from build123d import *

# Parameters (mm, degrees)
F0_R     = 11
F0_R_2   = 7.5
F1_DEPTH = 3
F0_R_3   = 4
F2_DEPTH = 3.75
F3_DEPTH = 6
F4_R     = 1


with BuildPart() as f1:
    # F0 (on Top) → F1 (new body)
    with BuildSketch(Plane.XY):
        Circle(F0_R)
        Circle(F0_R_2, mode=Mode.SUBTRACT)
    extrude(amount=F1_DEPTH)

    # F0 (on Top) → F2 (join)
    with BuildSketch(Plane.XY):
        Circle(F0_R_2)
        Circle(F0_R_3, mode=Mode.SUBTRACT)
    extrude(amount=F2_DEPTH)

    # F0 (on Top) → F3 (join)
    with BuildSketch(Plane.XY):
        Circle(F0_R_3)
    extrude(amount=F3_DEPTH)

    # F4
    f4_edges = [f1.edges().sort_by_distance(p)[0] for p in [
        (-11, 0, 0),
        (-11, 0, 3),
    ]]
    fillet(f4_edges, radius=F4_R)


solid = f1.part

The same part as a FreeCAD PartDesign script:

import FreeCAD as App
import Part
import Sketcher


def edges_at(feature, points):
    """Names of the edges that pass closest to the given points."""
    edges = feature.Shape.Edges
    near = lambda p: min(range(len(edges)), key=lambda i: edges[i].distToShape(Part.Vertex(*p))[0])
    return sorted({f"Edge{near(p) + 1}" for p in points})

doc = App.newDocument("Part")
body = doc.addObject("PartDesign::Body", "Body")

sketch1 = body.newObject("Sketcher::SketchObject", "Sketch")
sketch1.AttachmentSupport = (doc.getObject("XY_Plane"), [""])
sketch1.MapMode = "FlatFace"
sketch1.addGeometry([
    Part.Circle(App.Vector(0, 0, 0), App.Vector(0, 0, 1), 11),
    Part.Circle(App.Vector(0, 0, 0), App.Vector(0, 0, 1), 7.5),
], False)
sketch1.addConstraint([
    Sketcher.Constraint("Coincident", 0, 3, -1, 1),
    Sketcher.Constraint("Coincident", 1, 3, -1, 1),
    Sketcher.Constraint("Diameter", 0, 22.0),
    Sketcher.Constraint("Diameter", 1, 15.0),
])
pad1 = body.newObject("PartDesign::Pad", "Pad")
pad1.Profile = sketch1
pad1.Length = 3

sketch2 = body.newObject("Sketcher::SketchObject", "Sketch001")
sketch2.AttachmentSupport = (doc.getObject("XY_Plane"), [""])
sketch2.MapMode = "FlatFace"
sketch2.addGeometry([
    Part.Circle(App.Vector(0, 0, 0), App.Vector(0, 0, 1), 7.5),
    Part.Circle(App.Vector(0, 0, 0), App.Vector(0, 0, 1), 4),
], False)
sketch2.addConstraint([
    Sketcher.Constraint("Coincident", 0, 3, -1, 1),
    Sketcher.Constraint("Coincident", 1, 3, -1, 1),
    Sketcher.Constraint("Diameter", 0, 15.0),
    Sketcher.Constraint("Diameter", 1, 8.0),
])
pad2 = body.newObject("PartDesign::Pad", "Pad001")
pad2.Profile = sketch2
pad2.Length = 3.75

sketch3 = body.newObject("Sketcher::SketchObject", "Sketch002")
sketch3.AttachmentSupport = (doc.getObject("XY_Plane"), [""])
sketch3.MapMode = "FlatFace"
sketch3.addGeometry(Part.Circle(App.Vector(0, 0, 0), App.Vector(0, 0, 1), 4), False)
sketch3.addConstraint([
    Sketcher.Constraint("Coincident", 0, 3, -1, 1),
    Sketcher.Constraint("Diameter", 0, 8.0),
])
pad3 = body.newObject("PartDesign::Pad", "Pad002")
pad3.Profile = sketch3
pad3.Length = 6
doc.recompute()

fillet = body.newObject("PartDesign::Fillet", "Fillet")
fillet.Base = (pad3, edges_at(pad3, [(-11, 0, 0), (-11, 0, 3)]))
fillet.Radius = 1

doc.recompute()
